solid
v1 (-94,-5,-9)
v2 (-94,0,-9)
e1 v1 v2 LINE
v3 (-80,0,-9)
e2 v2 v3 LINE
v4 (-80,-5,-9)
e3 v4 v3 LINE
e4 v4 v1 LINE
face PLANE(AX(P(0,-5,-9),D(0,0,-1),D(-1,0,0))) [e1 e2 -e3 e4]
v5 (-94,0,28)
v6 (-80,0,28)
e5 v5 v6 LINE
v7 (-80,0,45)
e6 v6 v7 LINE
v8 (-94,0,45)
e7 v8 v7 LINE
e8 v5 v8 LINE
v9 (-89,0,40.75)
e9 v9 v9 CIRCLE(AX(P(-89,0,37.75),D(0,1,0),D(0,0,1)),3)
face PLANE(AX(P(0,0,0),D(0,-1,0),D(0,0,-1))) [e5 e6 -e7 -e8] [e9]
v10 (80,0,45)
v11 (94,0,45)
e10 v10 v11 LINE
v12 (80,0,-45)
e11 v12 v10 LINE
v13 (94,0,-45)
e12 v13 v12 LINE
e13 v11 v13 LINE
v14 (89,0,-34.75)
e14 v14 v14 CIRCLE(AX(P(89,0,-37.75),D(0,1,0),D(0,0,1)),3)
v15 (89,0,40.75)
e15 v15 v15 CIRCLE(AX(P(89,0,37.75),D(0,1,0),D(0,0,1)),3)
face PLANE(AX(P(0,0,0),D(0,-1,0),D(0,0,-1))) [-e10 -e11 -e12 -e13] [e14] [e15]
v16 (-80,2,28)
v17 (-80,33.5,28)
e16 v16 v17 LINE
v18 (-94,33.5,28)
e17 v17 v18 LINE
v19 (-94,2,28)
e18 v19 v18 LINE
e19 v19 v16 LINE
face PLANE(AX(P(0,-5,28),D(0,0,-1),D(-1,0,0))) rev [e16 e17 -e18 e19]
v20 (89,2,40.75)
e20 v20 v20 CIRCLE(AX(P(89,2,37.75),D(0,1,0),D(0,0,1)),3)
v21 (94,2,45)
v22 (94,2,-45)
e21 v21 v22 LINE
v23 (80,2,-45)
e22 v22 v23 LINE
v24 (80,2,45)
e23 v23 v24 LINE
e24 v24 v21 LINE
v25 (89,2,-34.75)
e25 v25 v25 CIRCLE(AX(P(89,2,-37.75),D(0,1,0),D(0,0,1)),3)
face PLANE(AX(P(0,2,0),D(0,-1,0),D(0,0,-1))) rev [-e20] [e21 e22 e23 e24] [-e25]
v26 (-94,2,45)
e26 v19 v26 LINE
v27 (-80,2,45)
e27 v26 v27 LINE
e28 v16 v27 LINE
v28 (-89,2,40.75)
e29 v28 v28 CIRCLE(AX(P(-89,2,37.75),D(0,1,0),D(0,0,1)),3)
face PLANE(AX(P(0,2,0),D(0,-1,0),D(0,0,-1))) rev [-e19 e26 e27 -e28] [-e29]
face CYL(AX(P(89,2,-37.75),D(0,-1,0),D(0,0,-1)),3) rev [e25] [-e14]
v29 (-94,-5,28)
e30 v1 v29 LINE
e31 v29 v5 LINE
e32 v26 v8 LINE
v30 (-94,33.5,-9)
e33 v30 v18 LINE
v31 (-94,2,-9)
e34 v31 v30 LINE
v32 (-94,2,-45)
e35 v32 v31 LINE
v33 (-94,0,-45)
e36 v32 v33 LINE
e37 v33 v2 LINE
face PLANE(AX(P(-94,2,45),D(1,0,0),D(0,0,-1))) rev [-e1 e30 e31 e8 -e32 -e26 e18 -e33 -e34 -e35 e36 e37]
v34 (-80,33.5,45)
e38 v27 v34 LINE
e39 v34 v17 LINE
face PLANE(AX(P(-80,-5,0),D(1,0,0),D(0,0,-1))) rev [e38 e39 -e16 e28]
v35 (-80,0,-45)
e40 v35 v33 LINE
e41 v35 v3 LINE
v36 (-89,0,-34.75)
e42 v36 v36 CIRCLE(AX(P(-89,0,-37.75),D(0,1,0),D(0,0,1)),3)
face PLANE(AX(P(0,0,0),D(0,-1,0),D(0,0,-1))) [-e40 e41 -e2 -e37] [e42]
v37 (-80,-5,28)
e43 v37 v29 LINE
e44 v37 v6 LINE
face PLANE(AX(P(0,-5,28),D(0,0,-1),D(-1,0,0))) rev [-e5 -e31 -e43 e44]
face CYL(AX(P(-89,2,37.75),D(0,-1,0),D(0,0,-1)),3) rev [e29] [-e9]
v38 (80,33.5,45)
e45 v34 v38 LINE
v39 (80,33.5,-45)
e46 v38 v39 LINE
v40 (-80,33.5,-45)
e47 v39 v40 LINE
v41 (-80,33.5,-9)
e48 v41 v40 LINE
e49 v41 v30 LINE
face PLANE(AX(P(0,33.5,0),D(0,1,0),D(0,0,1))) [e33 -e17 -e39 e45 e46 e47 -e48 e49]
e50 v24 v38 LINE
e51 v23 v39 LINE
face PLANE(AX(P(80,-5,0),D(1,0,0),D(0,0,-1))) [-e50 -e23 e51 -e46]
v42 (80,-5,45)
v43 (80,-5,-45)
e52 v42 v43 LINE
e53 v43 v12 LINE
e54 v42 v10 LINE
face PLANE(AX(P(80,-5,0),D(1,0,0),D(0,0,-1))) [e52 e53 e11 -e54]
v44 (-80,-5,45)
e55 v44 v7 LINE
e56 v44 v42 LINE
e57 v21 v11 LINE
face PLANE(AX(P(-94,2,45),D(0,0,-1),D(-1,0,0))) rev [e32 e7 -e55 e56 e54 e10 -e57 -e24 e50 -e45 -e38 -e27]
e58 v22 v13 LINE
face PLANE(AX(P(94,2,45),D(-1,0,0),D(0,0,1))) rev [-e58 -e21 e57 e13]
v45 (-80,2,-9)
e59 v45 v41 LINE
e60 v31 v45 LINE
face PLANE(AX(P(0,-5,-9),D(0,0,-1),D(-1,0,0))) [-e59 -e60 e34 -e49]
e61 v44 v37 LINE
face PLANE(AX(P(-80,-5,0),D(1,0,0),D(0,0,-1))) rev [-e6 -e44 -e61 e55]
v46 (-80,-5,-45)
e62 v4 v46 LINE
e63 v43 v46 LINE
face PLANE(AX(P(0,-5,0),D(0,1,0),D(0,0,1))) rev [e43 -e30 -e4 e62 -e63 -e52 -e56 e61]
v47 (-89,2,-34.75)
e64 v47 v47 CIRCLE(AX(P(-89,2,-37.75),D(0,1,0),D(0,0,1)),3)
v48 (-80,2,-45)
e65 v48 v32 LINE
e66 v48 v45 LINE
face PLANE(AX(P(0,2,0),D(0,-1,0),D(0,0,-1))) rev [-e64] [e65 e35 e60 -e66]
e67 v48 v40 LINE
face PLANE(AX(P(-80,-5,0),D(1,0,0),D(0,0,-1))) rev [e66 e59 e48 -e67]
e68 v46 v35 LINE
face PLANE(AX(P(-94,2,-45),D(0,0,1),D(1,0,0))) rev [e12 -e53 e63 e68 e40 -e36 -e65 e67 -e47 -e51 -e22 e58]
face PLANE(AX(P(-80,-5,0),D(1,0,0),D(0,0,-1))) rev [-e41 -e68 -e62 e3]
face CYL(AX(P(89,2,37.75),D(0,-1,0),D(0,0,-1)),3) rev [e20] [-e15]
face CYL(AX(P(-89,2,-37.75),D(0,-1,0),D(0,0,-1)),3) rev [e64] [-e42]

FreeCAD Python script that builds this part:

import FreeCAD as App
import Part
import Sketcher

V = App.Vector


def add_polygon(sketch, points):
    """Adds a closed chain of lines whose ends are joined by coincident constraints."""
    first, n = sketch.GeometryCount, len(points)
    for a, b in zip(points, points[1:] + points[:1]):
        sketch.addGeometry(Part.LineSegment(App.Vector(*a, 0), App.Vector(*b, 0)), False)
    for i in range(n):
        sketch.addConstraint(Sketcher.Constraint("Coincident", first + i, 2, first + (i + 1) % n, 1))

doc = App.newDocument("Part")
body = doc.addObject("PartDesign::Body", "Body")

# Sketch on XZ plane
sketch1 = body.newObject("Sketcher::SketchObject", "Sketch")
sketch1.AttachmentSupport = (doc.getObject("XZ_Plane"), [""])
sketch1.MapMode = "FlatFace"
add_polygon(sketch1, [(-94, -45), (-94, 45), (94, 45), (94, -45)])  # lines 0-3
sketch1.addGeometry(Part.Circle(V(-89, 37.8, 0), V(0, 0, 1), 3), False)  # 4
sketch1.addGeometry(Part.Circle(V(89, 37.8, 0), V(0, 0, 1), 3), False)  # 5
sketch1.addGeometry(Part.Circle(V(-89, -37.8, 0), V(0, 0, 1), 3), False)  # 6
sketch1.addGeometry(Part.Circle(V(89, -37.8, 0), V(0, 0, 1), 3), False)  # 7
sketch1.addConstraint(Sketcher.Constraint("Vertical", 0))
sketch1.addConstraint(Sketcher.Constraint("Horizontal", 1))
sketch1.addConstraint(Sketcher.Constraint("Vertical", 2))
sketch1.addConstraint(Sketcher.Constraint("Horizontal", 3))
sketch1.addConstraint(Sketcher.Constraint("Equal", 4, 5))
sketch1.addConstraint(Sketcher.Constraint("Equal", 5, 6))
sketch1.addConstraint(Sketcher.Constraint("Equal", 6, 7))
sketch1.addConstraint(Sketcher.Constraint("Symmetric", 5, 3, 6, 3, -1, 1))
sketch1.addConstraint(Sketcher.Constraint("Symmetric", 4, 3, 7, 3, -1, 1))
sketch1.addConstraint(Sketcher.Constraint("Symmetric", 0, 2, 2, 2, -1, 1))
sketch1.addConstraint(Sketcher.Constraint("Symmetric", 4, 3, 5, 3, -2))
sketch1.addConstraint(Sketcher.Constraint("Diameter", 4, 6.0))
sketch1.addConstraint(Sketcher.Constraint("DistanceX", 1, 1, 1, 2, 188.0))
sketch1.addConstraint(Sketcher.Constraint("DistanceY", 0, 1, 0, 2, 90.0))
sketch1.addConstraint(Sketcher.Constraint("DistanceX", 4, 3, -1, 1, 89.0))
sketch1.addConstraint(Sketcher.Constraint("DistanceY", 6, 3, 4, 3, 75.5))
pad1 = body.newObject("PartDesign::Pad", "Pad")
pad1.Profile = sketch1
pad1.Length = 2
pad1.Reversed = True

# Sketch on XZ plane
sketch2 = body.newObject("Sketcher::SketchObject", "Sketch001")
sketch2.AttachmentSupport = (doc.getObject("XZ_Plane"), [""])
sketch2.MapMode = "FlatFace"
sketch2.AttachmentOffset = App.Placement(V(0, 0, -2), App.Rotation())
add_polygon(sketch2, [(-80, 45), (80, 45), (80, -45), (-80, -45), (-80, -9), (-94, -9), (-94, 28), (-80, 28)])  # lines 0-7
sketch2.addConstraint(Sketcher.Constraint("Horizontal", 0))
sketch2.addConstraint(Sketcher.Constraint("Vertical", 1))
sketch2.addConstraint(Sketcher.Constraint("Horizontal", 2))
sketch2.addConstraint(Sketcher.Constraint("Vertical", 3))
sketch2.addConstraint(Sketcher.Constraint("Horizontal", 4))
sketch2.addConstraint(Sketcher.Constraint("Vertical", 5))
sketch2.addConstraint(Sketcher.Constraint("Horizontal", 6))
sketch2.addConstraint(Sketcher.Constraint("Vertical", 7))
sketch2.addConstraint(Sketcher.Constraint("Symmetric", 0, 2, 2, 2, -1, 1))
sketch2.addConstraint(Sketcher.Constraint("Vertical", 3, 2, 6, 2))
sketch2.addConstraint(Sketcher.Constraint("DistanceX", 0, 1, 0, 2, 160.0))
sketch2.addConstraint(Sketcher.Constraint("DistanceX", 4, 2, 4, 1, 14.0))
sketch2.addConstraint(Sketcher.Constraint("DistanceY", 1, 2, 1, 1, 90.0))
sketch2.addConstraint(Sketcher.Constraint("DistanceY", 3, 1, 3, 2, 36.0))
sketch2.addConstraint(Sketcher.Constraint("DistanceY", 5, 1, 5, 2, 37.0))
pad2 = body.newObject("PartDesign::Pad", "Pad001")
pad2.Profile = sketch2
pad2.Type = "TwoLengths"
pad2.Length = 31.5
pad2.Length2 = 7
pad2.Reversed = True

doc.recompute()
